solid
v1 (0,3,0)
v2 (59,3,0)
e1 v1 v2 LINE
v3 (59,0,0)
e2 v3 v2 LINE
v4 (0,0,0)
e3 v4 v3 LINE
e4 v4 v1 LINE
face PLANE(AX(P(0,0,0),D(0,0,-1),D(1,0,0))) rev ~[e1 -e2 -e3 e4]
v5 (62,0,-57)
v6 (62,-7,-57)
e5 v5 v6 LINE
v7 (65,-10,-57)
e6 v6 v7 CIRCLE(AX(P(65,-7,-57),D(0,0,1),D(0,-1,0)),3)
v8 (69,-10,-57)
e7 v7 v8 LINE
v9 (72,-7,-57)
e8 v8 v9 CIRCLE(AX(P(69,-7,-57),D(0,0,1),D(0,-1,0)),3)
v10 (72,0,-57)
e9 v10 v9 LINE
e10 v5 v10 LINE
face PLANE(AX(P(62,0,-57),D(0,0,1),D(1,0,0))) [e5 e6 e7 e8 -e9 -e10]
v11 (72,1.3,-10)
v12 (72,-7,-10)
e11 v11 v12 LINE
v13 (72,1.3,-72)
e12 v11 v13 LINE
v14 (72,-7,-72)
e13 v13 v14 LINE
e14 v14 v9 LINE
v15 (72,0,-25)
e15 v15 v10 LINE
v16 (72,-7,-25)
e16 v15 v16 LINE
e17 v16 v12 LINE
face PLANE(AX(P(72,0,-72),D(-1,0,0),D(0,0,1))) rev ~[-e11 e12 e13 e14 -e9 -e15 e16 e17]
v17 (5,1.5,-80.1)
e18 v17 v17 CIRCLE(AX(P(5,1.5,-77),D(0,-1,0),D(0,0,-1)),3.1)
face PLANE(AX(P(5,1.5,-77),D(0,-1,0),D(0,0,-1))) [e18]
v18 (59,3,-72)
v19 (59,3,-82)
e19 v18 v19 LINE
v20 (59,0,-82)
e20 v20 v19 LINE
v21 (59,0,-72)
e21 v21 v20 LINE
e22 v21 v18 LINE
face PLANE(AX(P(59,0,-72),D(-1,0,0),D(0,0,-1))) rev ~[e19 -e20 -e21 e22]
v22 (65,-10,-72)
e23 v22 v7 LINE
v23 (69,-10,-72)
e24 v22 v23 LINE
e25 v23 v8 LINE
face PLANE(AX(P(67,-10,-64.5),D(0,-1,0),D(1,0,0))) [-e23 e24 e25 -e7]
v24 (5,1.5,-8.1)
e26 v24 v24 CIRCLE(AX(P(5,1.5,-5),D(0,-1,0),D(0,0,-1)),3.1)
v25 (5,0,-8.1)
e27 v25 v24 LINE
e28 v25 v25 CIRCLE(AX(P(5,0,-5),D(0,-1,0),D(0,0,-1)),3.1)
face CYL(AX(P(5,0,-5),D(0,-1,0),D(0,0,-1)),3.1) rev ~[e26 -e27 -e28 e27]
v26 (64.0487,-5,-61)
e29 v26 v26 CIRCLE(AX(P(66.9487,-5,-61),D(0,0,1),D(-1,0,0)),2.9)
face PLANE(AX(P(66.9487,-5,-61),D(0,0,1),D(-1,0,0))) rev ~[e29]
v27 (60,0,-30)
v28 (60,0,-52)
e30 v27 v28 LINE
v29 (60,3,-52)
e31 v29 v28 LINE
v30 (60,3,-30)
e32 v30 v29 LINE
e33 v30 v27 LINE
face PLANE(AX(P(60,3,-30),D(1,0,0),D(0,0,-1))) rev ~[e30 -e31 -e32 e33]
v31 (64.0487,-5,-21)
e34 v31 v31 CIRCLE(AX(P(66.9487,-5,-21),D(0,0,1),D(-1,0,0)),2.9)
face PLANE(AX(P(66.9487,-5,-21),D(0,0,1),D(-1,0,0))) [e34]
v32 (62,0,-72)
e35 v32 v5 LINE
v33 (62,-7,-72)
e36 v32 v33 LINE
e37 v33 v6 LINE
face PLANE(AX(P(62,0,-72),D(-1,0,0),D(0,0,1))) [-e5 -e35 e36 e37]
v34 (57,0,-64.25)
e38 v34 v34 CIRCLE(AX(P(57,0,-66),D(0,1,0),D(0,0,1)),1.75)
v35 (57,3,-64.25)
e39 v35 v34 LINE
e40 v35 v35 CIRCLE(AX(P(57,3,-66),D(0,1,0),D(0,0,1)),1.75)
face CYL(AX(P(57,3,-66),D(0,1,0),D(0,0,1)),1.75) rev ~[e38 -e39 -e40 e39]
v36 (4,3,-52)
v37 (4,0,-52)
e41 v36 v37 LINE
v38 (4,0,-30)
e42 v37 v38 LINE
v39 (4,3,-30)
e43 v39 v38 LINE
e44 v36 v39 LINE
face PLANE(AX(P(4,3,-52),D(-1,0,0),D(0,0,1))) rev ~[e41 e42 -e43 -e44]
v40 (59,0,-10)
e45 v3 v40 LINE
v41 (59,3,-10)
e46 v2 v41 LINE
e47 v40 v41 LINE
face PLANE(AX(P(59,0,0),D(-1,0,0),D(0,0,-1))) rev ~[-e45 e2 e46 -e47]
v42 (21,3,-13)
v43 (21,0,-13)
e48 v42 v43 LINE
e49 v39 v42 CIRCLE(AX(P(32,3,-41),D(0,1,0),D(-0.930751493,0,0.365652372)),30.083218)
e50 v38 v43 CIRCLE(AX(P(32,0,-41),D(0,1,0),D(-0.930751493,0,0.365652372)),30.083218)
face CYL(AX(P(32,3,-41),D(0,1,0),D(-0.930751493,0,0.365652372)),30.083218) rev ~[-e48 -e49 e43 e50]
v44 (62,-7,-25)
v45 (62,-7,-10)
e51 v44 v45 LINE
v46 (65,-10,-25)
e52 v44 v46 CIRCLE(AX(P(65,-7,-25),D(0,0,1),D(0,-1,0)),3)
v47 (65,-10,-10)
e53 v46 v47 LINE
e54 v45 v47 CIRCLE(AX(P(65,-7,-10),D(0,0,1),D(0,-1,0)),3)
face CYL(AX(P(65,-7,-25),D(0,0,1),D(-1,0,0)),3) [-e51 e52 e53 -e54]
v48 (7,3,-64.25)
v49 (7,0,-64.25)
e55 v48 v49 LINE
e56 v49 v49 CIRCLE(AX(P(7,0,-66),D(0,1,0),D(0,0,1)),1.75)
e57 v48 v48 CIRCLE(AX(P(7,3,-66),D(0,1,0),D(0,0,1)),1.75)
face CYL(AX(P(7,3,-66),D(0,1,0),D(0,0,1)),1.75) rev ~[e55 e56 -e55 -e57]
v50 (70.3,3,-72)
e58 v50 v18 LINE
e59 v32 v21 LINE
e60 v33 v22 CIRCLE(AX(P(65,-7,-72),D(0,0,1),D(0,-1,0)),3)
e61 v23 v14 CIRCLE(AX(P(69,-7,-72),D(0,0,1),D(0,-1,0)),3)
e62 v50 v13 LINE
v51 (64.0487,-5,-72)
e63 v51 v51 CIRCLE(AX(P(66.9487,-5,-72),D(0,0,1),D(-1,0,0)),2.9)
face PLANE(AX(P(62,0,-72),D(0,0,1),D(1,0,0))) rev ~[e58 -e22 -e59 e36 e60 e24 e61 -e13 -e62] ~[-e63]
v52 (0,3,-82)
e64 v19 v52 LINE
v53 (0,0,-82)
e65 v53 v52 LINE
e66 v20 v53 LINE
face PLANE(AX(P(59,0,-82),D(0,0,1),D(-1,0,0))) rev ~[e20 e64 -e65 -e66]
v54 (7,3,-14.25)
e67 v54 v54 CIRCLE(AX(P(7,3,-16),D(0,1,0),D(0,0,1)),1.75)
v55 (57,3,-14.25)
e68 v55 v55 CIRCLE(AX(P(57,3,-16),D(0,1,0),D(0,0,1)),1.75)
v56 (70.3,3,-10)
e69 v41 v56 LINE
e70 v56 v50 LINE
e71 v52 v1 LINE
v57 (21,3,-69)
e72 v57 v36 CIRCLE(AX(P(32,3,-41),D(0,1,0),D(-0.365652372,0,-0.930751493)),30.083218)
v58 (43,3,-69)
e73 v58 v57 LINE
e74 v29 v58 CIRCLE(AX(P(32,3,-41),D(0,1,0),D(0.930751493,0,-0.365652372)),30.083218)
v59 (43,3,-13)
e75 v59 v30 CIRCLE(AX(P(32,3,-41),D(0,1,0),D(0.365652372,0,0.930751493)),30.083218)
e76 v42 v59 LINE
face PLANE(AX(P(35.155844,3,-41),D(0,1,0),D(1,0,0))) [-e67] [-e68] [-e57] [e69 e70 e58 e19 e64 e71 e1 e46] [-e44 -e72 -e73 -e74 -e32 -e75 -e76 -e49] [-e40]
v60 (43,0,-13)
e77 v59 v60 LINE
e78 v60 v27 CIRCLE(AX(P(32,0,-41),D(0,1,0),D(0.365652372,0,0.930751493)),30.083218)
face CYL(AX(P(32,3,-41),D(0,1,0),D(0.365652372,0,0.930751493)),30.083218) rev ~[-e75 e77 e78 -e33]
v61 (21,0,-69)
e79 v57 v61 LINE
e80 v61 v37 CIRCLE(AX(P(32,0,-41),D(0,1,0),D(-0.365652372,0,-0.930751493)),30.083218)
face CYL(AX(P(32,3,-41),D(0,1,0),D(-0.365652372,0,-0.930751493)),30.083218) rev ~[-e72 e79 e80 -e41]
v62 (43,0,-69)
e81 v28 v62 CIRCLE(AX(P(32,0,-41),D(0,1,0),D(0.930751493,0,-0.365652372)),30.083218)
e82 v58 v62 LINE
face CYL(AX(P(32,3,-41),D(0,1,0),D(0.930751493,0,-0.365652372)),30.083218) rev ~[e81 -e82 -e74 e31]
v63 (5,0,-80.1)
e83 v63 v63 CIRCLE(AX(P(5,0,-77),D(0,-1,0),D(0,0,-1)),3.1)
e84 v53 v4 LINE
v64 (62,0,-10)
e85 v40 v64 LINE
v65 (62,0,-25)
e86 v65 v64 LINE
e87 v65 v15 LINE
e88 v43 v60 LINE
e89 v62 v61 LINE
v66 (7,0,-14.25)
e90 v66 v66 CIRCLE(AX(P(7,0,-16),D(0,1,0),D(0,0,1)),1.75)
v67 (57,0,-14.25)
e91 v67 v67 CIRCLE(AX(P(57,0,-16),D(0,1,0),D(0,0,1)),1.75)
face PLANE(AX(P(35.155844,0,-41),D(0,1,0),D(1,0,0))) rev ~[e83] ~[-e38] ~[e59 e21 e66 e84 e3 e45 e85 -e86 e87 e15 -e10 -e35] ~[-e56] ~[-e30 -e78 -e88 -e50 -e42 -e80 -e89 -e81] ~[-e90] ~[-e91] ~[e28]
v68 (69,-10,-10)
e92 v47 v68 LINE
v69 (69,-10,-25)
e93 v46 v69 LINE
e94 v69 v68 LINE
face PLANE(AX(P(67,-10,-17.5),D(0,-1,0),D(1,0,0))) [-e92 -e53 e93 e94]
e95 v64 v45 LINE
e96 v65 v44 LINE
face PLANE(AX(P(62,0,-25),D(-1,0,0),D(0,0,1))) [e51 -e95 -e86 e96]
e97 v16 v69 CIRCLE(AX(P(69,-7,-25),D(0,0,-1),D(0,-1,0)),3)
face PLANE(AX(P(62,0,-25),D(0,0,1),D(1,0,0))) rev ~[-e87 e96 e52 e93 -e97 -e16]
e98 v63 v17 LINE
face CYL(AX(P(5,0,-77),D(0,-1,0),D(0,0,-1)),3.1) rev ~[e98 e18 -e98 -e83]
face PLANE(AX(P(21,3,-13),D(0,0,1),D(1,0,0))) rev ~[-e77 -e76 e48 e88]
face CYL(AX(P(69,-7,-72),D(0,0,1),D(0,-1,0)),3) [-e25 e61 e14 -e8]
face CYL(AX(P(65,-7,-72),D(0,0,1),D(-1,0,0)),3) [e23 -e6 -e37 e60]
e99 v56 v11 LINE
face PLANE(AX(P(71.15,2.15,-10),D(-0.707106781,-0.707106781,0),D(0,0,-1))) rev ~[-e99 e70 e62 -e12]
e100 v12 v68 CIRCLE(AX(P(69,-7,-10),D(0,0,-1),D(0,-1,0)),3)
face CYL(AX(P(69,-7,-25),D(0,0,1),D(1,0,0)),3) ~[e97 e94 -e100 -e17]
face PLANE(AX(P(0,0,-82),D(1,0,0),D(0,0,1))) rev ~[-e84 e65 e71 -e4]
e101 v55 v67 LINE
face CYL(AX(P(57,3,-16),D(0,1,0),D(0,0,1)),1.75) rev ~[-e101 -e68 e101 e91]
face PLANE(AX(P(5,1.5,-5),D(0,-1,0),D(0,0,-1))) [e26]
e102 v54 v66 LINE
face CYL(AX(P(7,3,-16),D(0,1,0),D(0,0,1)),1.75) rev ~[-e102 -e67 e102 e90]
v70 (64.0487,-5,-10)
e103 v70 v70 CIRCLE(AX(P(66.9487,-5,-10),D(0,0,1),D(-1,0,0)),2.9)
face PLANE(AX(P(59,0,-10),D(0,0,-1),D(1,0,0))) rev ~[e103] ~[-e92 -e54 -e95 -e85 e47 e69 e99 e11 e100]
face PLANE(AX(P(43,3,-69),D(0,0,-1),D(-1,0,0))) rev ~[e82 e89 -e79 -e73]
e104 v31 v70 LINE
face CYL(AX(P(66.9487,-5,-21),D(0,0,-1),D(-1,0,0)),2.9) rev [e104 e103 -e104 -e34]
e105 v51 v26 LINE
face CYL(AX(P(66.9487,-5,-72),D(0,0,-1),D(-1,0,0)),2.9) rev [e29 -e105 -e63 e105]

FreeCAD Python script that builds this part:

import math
import FreeCAD as App
import Part
import Sketcher
from FreeCAD import Vector
Q = App.Units.Quantity


def edges_at(feature, points):
    """Names of the edges that pass closest to the given points."""
    edges = feature.Shape.Edges
    near = lambda p: min(range(len(edges)), key=lambda i: edges[i].distToShape(Part.Vertex(*p))[0])
    return sorted({f"Edge{near(p) + 1}" for p in points})

doc = App.newDocument("Part")
body = doc.addObject("PartDesign::Body", "Body")

# Sketch on XZ plane
sketch1 = body.newObject("Sketcher::SketchObject", "Sketch")
sketch1.AttachmentSupport = (doc.getObject("XZ_Plane"), [""])
sketch1.MapMode = "FlatFace"
sketch1.addGeometry([
    Part.LineSegment(Vector(59, -72, 0), Vector(59, -82, 0)),  # 0
    Part.LineSegment(Vector(59, -82, 0), Vector(0, -82, 0)),  # 1
    Part.LineSegment(Vector(0, -82, 0), Vector(0, 0, 0)),  # 2
    Part.LineSegment(Vector(0, 0, 0), Vector(59, 0, 0)),  # 3
    Part.LineSegment(Vector(59, 0, 0), Vector(59, -10, 0)),  # 4
    Part.LineSegment(Vector(59, -10, 0), Vector(72, -10, 0)),  # 5
    Part.LineSegment(Vector(72, -10, 0), Vector(72, -72, 0)),  # 6
    Part.LineSegment(Vector(72, -72, 0), Vector(59, -72, 0)),  # 7
], False)
sketch1.addConstraint([
    Sketcher.Constraint("Coincident", 0, 2, 1, 1),
    Sketcher.Constraint("Coincident", 1, 2, 2, 1),
    Sketcher.Constraint("Coincident", 2, 2, 3, 1),
    Sketcher.Constraint("Coincident", 3, 2, 4, 1),
    Sketcher.Constraint("Coincident", 4, 2, 5, 1),
    Sketcher.Constraint("Coincident", 5, 2, 6, 1),
    Sketcher.Constraint("Coincident", 6, 2, 7, 1),
    Sketcher.Constraint("Coincident", 7, 2, 0, 1),
    Sketcher.Constraint("Vertical", 0),
    Sketcher.Constraint("Horizontal", 1),
    Sketcher.Constraint("Vertical", 2),
    Sketcher.Constraint("Horizontal", 3),
    Sketcher.Constraint("Vertical", 4),
    Sketcher.Constraint("Horizontal", 5),
    Sketcher.Constraint("Vertical", 6),
    Sketcher.Constraint("Horizontal", 7),
    Sketcher.Constraint("Coincident", 2, 2, -1, 1),
    Sketcher.Constraint("Vertical", 0, 2, 3, 2),
    Sketcher.Constraint("Equal", 0, 4),
    Sketcher.Constraint("DistanceX", 1, 2, 1, 1, Q("59 mm")),
    Sketcher.Constraint("DistanceX", 5, 1, 5, 2, Q("13 mm")),
    Sketcher.Constraint("DistanceY", 0, 2, 0, 1, Q("10 mm")),
    Sketcher.Constraint("DistanceY", 2, 1, 2, 2, Q("82 mm")),
])
pad1 = body.newObject("PartDesign::Pad", "Pad")
pad1.Profile = sketch1
pad1.Length = 3
pad1.Reversed = True

# Sketch on XZ plane
sketch2 = body.newObject("Sketcher::SketchObject", "Sketch001")
sketch2.AttachmentSupport = (doc.getObject("XZ_Plane"), [""])
sketch2.MapMode = "FlatFace"
sketch2.addGeometry([
    Part.LineSegment(Vector(62, -57, 0), Vector(62, -72, 0)),  # 0
    Part.LineSegment(Vector(62, -72, 0), Vector(72, -72, 0)),  # 1
    Part.LineSegment(Vector(72, -72, 0), Vector(72, -57, 0)),  # 2
    Part.LineSegment(Vector(72, -57, 0), Vector(62, -57, 0)),  # 3
    Part.LineSegment(Vector(62, -10, 0), Vector(62, -25, 0)),  # 4
    Part.LineSegment(Vector(62, -25, 0), Vector(72, -25, 0)),  # 5
    Part.LineSegment(Vector(72, -25, 0), Vector(72, -10, 0)),  # 6
    Part.LineSegment(Vector(72, -10, 0), Vector(62, -10, 0)),  # 7
], False)
sketch2.addConstraint([
    Sketcher.Constraint("Coincident", 0, 2, 1, 1),
    Sketcher.Constraint("Coincident", 1, 2, 2, 1),
    Sketcher.Constraint("Coincident", 2, 2, 3, 1),
    Sketcher.Constraint("Coincident", 3, 2, 0, 1),
    Sketcher.Constraint("Coincident", 4, 2, 5, 1),
    Sketcher.Constraint("Coincident", 5, 2, 6, 1),
    Sketcher.Constraint("Coincident", 6, 2, 7, 1),
    Sketcher.Constraint("Coincident", 7, 2, 4, 1),
    Sketcher.Constraint("Vertical", 0),
    Sketcher.Constraint("Horizontal", 1),
    Sketcher.Constraint("Vertical", 2),
    Sketcher.Constraint("Horizontal", 3),
    Sketcher.Constraint("Vertical", 4),
    Sketcher.Constraint("Horizontal", 5),
    Sketcher.Constraint("Vertical", 6),
    Sketcher.Constraint("Horizontal", 7),
    Sketcher.Constraint("Vertical", 3, 2, 4, 2),
    Sketcher.Constraint("Vertical", 2, 2, 5, 2),
    Sketcher.Constraint("Equal", 2, 4),
    Sketcher.Constraint("DistanceX", 1, 1, 1, 2, Q("10 mm")),
    Sketcher.Constraint("DistanceY", 0, 2, 0, 1, Q("15 mm")),
    Sketcher.Constraint("DistanceX", -1, 1, 0, 2, Q("62 mm")),
    Sketcher.Constraint("DistanceY", 0, 2, -1, 1, Q("72 mm")),
    Sketcher.Constraint("DistanceY", 4, 2, -1, 1, Q("25 mm")),
])
pad2 = body.newObject("PartDesign::Pad", "Pad001")
pad2.Profile = sketch2
pad2.Length = 10

# Sketch on XZ plane
sketch3 = body.newObject("Sketcher::SketchObject", "Sketch002")
sketch3.AttachmentSupport = (doc.getObject("XZ_Plane"), [""])
sketch3.MapMode = "FlatFace"
sketch3.AttachmentOffset = App.Placement(Vector(0, 0, -3), App.Rotation())
sketch3.addGeometry([
    Part.LineSegment(Vector(4, -52, 0), Vector(4, -30, 0)),  # 0
    Part.ArcOfCircle(Part.Circle(Vector(32, -41, 0), Vector(0, 0, 1), 30.1), math.radians(111), math.radians(159)),  # 1
    Part.LineSegment(Vector(21, -13, 0), Vector(43, -13, 0)),  # 2
    Part.ArcOfCircle(Part.Circle(Vector(32, -41, 0), Vector(0, 0, 1), 30.1), math.radians(21), math.radians(69)),  # 3
    Part.LineSegment(Vector(60, -30, 0), Vector(60, -52, 0)),  # 4
    Part.ArcOfCircle(Part.Circle(Vector(32, -41, 0), Vector(0, 0, 1), 30.1), math.radians(-69), math.radians(-21)),  # 5
    Part.LineSegment(Vector(43, -69, 0), Vector(21, -69, 0)),  # 6
    Part.ArcOfCircle(Part.Circle(Vector(32, -41, 0), Vector(0, 0, 1), 30.1), math.radians(-159), math.radians(-111)),  # 7
    Part.Circle(Vector(7, -66, 0), Vector(0, 0, 1), 1.8),  # 8
    Part.Circle(Vector(57, -66, 0), Vector(0, 0, 1), 1.8),  # 9
    Part.Circle(Vector(57, -16, 0), Vector(0, 0, 1), 1.8),  # 10
    Part.Circle(Vector(7, -16, 0), Vector(0, 0, 1), 1.8),  # 11
], False)
sketch3.addConstraint([
    Sketcher.Constraint("Coincident", 0, 2, 1, 2),
    Sketcher.Constraint("Coincident", 1, 1, 2, 1),
    Sketcher.Constraint("Coincident", 2, 2, 3, 2),
    Sketcher.Constraint("Coincident", 3, 1, 4, 1),
    Sketcher.Constraint("Coincident", 4, 2, 5, 2),
    Sketcher.Constraint("Coincident", 5, 1, 6, 1),
    Sketcher.Constraint("Coincident", 6, 2, 7, 2),
    Sketcher.Constraint("Coincident", 7, 1, 0, 1),
    Sketcher.Constraint("Vertical", 0),
    Sketcher.Constraint("Horizontal", 2),
    Sketcher.Constraint("Vertical", 4),
    Sketcher.Constraint("Horizontal", 6),
    Sketcher.Constraint("Coincident", 3, 3, 1, 3),
    Sketcher.Constraint("Coincident", 5, 3, 1, 3),
    Sketcher.Constraint("Coincident", 7, 3, 1, 3),
    Sketcher.Constraint("Equal", 1, 3),
    Sketcher.Constraint("Equal", 3, 5),
    Sketcher.Constraint("Equal", 5, 7),
    Sketcher.Constraint("Equal", 8, 9),
    Sketcher.Constraint("Equal", 9, 10),
    Sketcher.Constraint("Equal", 10, 11),
    Sketcher.Constraint("Horizontal", 8, 3, 9, 3),
    Sketcher.Constraint("Horizontal", 10, 3, 11, 3),
    Sketcher.Constraint("Horizontal", 0, 2, 3, 1),
    Sketcher.Constraint("Vertical", 9, 3, 10, 3),
    Sketcher.Constraint("Vertical", 8, 3, 11, 3),
    Sketcher.Constraint("Vertical", 2, 2, 5, 1),
    Sketcher.Constraint("Equal", 6, 0),
    Sketcher.Constraint("Diameter", 8, Q("3.5 mm")),
    Sketcher.Constraint("DistanceX", 2, 1, 2, 2, Q("22 mm")),
    Sketcher.Constraint("DistanceX", -1, 1, 1, 3, Q("32 mm")),
    Sketcher.Constraint("DistanceY", 1, 3, -1, 1, Q("41 mm")),
    Sketcher.Constraint("DistanceX", -1, 1, 8, 3, Q("7 mm")),
    Sketcher.Constraint("DistanceY", 8, 3, -1, 1, Q("66 mm")),
    Sketcher.Constraint("DistanceX", -1, 1, 9, 3, Q("57 mm")),
    Sketcher.Constraint("DistanceY", 10, 3, -1, 1, Q("16 mm")),
    Sketcher.Constraint("DistanceX", -1, 1, 0, 2, Q("4 mm")),
])
pocket1 = body.newObject("PartDesign::Pocket", "Pocket")
pocket1.Profile = sketch3
pocket1.Type = "ThroughAll"
pocket1.Reversed = True
doc.recompute()

fillet = body.newObject("PartDesign::Fillet", "Fillet")
fillet.Base = (pocket1, edges_at(pocket1, [
    (72, -10, -64.5),
    (62, -10, -64.5),
    (62, -10, -17.5),
    (72, -10, -17.5),
]))
fillet.Radius = 3

# Sketch on XY plane
sketch4 = body.newObject("Sketcher::SketchObject", "Sketch003")
sketch4.AttachmentSupport = (doc.getObject("XY_Plane"), [""])
sketch4.MapMode = "FlatFace"
sketch4.AttachmentOffset = App.Placement(Vector(0, 0, -72), App.Rotation())
sketch4.addGeometry(Part.Circle(Vector(66.9, -5, 0), Vector(0, 0, 1), 2.9), False)
sketch4.addConstraint([
    Sketcher.Constraint("Diameter", 0, Q("5.8 mm")),
    Sketcher.Constraint("DistanceY", 0, 3, -1, 1, Q("5 mm")),
    Sketcher.Constraint("DistanceX", -1, 1, 0, 3, Q("66.9487 mm")),
])
pocket2 = body.newObject("PartDesign::Pocket", "Pocket001")
pocket2.Profile = sketch4
pocket2.Length = 11
pocket2.Reversed = True

# Sketch on XY plane
sketch5 = body.newObject("Sketcher::SketchObject", "Sketch004")
sketch5.AttachmentSupport = (doc.getObject("XY_Plane"), [""])
sketch5.MapMode = "FlatFace"
sketch5.AttachmentOffset = App.Placement(Vector(0, 0, -21), App.Rotation())
sketch5.addGeometry(Part.Circle(Vector(66.9, -5, 0), Vector(0, 0, 1), 2.9), False)
sketch5.addConstraint([
    Sketcher.Constraint("Diameter", 0, Q("5.8 mm")),
    Sketcher.Constraint("DistanceY", 0, 3, -1, 1, Q("5 mm")),
    Sketcher.Constraint("DistanceX", -1, 1, 0, 3, Q("66.9487 mm")),
])
pocket3 = body.newObject("PartDesign::Pocket", "Pocket002")
pocket3.Profile = sketch5
pocket3.Length = 11
pocket3.Reversed = True
doc.recompute()

chamfer = body.newObject("PartDesign::Chamfer", "Chamfer")
chamfer.Base = (pocket3, edges_at(pocket3, [(72, 3, -41)]))
chamfer.Size = 1.7

# Sketch on XZ plane
sketch6 = body.newObject("Sketcher::SketchObject", "Sketch005")
sketch6.AttachmentSupport = (doc.getObject("XZ_Plane"), [""])
sketch6.MapMode = "FlatFace"
sketch6.addGeometry([
    Part.Circle(Vector(5, -5, 0), Vector(0, 0, 1), 3.1),
    Part.Circle(Vector(5, -77, 0), Vector(0, 0, 1), 3.1),
], False)
sketch6.addConstraint([
    Sketcher.Constraint("Equal", 0, 1),
    Sketcher.Constraint("Vertical", 0, 3, 1, 3),
    Sketcher.Constraint("Diameter", 0, Q("6.2 mm")),
    Sketcher.Constraint("DistanceX", -1, 1, 0, 3, Q("5 mm")),
    Sketcher.Constraint("DistanceY", 0, 3, -1, 1, Q("5 mm")),
    Sketcher.Constraint("DistanceY", 1, 3, -1, 1, Q("77 mm")),
])
pocket4 = body.newObject("PartDesign::Pocket", "Pocket003")
pocket4.Profile = sketch6
pocket4.Length = 1.5

doc.recompute()
